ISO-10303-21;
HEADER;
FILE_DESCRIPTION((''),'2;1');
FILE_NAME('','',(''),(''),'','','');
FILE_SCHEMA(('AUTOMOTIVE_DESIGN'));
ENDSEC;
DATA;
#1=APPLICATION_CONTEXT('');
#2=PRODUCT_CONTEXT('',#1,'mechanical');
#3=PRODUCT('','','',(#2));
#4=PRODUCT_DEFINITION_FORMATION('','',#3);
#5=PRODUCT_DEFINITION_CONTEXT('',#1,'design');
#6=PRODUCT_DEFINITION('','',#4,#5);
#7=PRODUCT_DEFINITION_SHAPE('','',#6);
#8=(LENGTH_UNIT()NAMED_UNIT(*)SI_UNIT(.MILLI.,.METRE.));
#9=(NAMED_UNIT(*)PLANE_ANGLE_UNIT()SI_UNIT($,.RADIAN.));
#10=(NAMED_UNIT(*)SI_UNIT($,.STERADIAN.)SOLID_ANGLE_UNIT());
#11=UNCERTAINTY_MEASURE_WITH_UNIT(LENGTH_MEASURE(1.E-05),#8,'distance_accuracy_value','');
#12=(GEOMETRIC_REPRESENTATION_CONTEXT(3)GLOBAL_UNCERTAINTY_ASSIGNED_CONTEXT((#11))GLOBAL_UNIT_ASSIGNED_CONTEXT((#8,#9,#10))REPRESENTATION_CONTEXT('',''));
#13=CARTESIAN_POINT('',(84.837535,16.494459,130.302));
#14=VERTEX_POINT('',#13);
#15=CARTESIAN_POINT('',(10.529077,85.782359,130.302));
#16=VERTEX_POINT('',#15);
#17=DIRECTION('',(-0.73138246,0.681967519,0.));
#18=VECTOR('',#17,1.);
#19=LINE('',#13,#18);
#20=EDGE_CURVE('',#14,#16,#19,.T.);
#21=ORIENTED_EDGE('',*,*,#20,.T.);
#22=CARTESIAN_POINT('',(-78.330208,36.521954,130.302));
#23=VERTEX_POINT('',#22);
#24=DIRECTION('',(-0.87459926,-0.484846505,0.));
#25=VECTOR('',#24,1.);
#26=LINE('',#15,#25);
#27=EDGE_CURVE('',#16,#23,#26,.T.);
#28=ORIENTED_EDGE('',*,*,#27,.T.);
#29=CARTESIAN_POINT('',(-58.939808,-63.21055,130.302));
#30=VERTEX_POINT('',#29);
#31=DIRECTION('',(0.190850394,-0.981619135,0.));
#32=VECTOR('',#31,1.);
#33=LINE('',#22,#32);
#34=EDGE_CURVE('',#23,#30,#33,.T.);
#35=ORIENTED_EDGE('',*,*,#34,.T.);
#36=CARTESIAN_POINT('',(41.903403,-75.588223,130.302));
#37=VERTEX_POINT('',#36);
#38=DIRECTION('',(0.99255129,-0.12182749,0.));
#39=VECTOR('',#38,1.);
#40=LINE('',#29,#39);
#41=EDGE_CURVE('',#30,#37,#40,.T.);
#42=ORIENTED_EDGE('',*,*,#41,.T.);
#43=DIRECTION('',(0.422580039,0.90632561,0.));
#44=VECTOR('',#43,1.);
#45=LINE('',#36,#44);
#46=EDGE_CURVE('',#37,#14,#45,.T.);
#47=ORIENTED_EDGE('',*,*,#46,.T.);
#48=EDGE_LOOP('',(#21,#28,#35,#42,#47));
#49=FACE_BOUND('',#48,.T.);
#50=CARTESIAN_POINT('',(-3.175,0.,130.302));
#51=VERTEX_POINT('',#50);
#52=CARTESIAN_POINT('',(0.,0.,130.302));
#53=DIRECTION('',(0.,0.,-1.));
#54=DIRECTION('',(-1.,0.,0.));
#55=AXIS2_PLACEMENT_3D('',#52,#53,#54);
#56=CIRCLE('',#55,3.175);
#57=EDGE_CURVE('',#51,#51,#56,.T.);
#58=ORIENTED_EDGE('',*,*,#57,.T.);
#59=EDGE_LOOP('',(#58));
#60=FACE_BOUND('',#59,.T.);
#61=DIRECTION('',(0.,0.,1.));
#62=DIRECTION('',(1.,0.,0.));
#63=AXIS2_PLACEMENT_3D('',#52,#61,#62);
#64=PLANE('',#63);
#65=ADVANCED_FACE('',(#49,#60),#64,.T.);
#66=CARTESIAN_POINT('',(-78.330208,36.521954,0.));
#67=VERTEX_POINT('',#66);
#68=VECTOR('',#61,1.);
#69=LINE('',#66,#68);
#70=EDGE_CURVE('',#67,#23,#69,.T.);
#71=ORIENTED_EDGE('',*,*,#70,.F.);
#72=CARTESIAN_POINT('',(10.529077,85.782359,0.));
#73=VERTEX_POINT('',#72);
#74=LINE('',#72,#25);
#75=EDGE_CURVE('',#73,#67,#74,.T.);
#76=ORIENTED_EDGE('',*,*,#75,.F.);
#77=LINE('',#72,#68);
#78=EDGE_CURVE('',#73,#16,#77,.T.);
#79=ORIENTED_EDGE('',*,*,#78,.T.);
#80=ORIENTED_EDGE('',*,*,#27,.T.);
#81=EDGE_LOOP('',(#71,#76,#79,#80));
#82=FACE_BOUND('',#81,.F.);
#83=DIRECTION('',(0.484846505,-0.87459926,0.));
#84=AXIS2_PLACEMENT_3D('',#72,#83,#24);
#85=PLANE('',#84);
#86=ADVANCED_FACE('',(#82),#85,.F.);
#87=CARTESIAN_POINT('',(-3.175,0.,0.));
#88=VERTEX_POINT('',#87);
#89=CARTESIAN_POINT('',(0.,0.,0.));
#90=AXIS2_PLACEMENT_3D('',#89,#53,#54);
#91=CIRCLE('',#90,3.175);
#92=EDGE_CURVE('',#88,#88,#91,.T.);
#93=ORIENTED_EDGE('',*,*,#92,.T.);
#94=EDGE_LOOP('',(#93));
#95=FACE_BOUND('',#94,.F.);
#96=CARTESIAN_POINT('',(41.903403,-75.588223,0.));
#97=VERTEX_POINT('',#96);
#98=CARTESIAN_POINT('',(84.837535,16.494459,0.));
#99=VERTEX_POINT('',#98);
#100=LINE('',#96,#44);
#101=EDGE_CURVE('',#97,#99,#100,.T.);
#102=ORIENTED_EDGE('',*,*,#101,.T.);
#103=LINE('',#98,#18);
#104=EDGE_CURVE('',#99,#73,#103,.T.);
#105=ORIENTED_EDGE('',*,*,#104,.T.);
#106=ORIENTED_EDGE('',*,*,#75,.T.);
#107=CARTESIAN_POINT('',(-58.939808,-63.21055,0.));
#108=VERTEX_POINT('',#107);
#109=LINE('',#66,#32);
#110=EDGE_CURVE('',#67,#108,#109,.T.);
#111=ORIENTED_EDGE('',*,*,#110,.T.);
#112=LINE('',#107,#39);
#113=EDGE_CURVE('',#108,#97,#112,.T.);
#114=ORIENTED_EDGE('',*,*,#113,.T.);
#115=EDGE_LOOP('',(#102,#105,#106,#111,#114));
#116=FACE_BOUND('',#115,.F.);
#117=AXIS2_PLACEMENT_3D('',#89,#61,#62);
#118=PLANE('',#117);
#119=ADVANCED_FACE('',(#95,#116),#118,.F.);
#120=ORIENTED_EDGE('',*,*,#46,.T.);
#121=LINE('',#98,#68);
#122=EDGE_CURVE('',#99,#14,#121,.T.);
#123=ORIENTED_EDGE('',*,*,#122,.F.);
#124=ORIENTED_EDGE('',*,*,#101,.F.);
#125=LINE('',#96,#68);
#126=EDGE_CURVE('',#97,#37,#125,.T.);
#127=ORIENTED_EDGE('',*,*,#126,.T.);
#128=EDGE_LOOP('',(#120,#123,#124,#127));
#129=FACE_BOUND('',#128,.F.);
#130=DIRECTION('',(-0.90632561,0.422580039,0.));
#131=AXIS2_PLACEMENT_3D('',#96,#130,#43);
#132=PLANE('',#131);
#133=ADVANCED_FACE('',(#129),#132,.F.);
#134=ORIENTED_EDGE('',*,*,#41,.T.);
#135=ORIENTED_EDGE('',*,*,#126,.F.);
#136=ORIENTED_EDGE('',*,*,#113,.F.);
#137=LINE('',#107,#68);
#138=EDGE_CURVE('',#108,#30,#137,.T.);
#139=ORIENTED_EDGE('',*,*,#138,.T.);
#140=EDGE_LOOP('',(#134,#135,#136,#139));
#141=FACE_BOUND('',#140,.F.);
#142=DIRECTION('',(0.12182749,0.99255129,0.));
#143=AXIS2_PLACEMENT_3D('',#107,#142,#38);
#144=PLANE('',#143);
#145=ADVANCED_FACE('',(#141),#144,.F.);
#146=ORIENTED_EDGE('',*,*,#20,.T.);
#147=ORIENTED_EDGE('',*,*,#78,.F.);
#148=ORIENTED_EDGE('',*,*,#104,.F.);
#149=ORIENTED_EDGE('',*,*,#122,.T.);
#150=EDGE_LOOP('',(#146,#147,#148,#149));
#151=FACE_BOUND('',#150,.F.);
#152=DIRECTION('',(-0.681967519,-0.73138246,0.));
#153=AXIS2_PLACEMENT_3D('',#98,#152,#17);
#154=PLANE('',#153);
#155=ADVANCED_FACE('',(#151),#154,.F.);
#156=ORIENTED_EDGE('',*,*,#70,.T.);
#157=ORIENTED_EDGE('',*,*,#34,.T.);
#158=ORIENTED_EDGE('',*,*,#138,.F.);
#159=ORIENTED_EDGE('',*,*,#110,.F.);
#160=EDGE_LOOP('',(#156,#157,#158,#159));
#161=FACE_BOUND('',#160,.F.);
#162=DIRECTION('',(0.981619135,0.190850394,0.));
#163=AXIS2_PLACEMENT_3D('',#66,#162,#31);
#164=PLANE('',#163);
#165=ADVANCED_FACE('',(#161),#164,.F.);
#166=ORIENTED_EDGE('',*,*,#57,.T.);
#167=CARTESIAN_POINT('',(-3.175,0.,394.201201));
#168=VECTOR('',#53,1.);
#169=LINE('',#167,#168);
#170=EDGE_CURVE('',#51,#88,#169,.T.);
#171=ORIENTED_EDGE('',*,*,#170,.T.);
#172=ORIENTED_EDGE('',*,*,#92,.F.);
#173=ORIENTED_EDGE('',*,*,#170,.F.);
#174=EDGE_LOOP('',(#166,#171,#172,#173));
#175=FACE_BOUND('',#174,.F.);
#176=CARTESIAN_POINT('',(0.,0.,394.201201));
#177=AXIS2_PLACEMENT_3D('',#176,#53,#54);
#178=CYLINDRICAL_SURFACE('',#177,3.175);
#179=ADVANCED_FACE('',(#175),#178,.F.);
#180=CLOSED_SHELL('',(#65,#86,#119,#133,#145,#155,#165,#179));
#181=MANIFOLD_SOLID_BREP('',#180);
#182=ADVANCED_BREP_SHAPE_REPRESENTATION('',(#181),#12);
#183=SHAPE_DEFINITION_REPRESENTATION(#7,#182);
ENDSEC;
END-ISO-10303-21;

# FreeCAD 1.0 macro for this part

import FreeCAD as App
import Part
import Sketcher

V = App.Vector
Q = App.Units.Quantity


def add_polygon(sketch, points):
    """Adds a closed chain of lines whose ends are joined by coincident constraints."""
    first, n = sketch.GeometryCount, len(points)
    for a, b in zip(points, points[1:] + points[:1]):
        sketch.addGeometry(Part.LineSegment(App.Vector(*a, 0), App.Vector(*b, 0)), False)
    for i in range(n):
        sketch.addConstraint(Sketcher.Constraint("Coincident", first + i, 2, first + (i + 1) % n, 1))

doc = App.newDocument("Part")
body = doc.addObject("PartDesign::Body", "Body")

# Sketch on XY plane
sketch1 = doc.addObject("Sketcher::SketchObject", "Sketch")
body.addObject(sketch1)
sketch1.AttachmentSupport = (doc.XY_Plane, [""])
sketch1.MapMode = "FlatFace"
add_polygon(sketch1, [(10.529077, 85.782359), (-78.330208, 36.521954), (-58.939808, -63.21055), (41.903403, -75.588223), (84.837535, 16.494459)])  # lines 0-4
sketch1.addConstraint([
    Sketcher.Constraint("Equal", 0, 1),
    Sketcher.Constraint("Equal", 1, 2),
    Sketcher.Constraint("Equal", 2, 3),
    Sketcher.Constraint("Equal", 3, 4),
    Sketcher.Constraint("Distance", 0, Q("4 in")),
    Sketcher.Constraint("DistanceX", 0, 2, 1, 2, 19.3904),
    Sketcher.Constraint("DistanceY", 3, 2, 4, 2, 69.2879),
    Sketcher.Constraint("DistanceX", 0, 2, -1, 1, 78.330208),
    Sketcher.Constraint("DistanceY", 1, 2, -1, 1, 63.21055),
    Sketcher.Constraint("DistanceY", -1, 1, 3, 2, 16.494459),
])
pad1 = doc.addObject("PartDesign::Pad", "Pad")
body.addObject(pad1)
pad1.Profile = sketch1
pad1.Length = Q("5.13 in")

# Sketch on XY plane
sketch2 = doc.addObject("Sketcher::SketchObject", "Sketch001")
body.addObject(sketch2)
sketch2.AttachmentSupport = (doc.XY_Plane, [""])
sketch2.MapMode = "FlatFace"
sketch2.AttachmentOffset = App.Placement(V(0, 0, 5.13 * 25.4), App.Rotation())
sketch2.addGeometry(Part.Circle(V(0, 0, 0), V(0, 0, 1), 3.175), False)
sketch2.addConstraint([
    Sketcher.Constraint("Coincident", 0, 3, -1, 1),
    Sketcher.Constraint("Diameter", 0, Q("0.25 in")),
])
doc.recompute()
hole = doc.addObject("PartDesign::Hole", "Hole")
body.addObject(hole)
hole.Profile = sketch2
hole.ThreadType = "None"
hole.Diameter = Q("0.25 in")
hole.DepthType = "ThroughAll"

doc.recompute()
